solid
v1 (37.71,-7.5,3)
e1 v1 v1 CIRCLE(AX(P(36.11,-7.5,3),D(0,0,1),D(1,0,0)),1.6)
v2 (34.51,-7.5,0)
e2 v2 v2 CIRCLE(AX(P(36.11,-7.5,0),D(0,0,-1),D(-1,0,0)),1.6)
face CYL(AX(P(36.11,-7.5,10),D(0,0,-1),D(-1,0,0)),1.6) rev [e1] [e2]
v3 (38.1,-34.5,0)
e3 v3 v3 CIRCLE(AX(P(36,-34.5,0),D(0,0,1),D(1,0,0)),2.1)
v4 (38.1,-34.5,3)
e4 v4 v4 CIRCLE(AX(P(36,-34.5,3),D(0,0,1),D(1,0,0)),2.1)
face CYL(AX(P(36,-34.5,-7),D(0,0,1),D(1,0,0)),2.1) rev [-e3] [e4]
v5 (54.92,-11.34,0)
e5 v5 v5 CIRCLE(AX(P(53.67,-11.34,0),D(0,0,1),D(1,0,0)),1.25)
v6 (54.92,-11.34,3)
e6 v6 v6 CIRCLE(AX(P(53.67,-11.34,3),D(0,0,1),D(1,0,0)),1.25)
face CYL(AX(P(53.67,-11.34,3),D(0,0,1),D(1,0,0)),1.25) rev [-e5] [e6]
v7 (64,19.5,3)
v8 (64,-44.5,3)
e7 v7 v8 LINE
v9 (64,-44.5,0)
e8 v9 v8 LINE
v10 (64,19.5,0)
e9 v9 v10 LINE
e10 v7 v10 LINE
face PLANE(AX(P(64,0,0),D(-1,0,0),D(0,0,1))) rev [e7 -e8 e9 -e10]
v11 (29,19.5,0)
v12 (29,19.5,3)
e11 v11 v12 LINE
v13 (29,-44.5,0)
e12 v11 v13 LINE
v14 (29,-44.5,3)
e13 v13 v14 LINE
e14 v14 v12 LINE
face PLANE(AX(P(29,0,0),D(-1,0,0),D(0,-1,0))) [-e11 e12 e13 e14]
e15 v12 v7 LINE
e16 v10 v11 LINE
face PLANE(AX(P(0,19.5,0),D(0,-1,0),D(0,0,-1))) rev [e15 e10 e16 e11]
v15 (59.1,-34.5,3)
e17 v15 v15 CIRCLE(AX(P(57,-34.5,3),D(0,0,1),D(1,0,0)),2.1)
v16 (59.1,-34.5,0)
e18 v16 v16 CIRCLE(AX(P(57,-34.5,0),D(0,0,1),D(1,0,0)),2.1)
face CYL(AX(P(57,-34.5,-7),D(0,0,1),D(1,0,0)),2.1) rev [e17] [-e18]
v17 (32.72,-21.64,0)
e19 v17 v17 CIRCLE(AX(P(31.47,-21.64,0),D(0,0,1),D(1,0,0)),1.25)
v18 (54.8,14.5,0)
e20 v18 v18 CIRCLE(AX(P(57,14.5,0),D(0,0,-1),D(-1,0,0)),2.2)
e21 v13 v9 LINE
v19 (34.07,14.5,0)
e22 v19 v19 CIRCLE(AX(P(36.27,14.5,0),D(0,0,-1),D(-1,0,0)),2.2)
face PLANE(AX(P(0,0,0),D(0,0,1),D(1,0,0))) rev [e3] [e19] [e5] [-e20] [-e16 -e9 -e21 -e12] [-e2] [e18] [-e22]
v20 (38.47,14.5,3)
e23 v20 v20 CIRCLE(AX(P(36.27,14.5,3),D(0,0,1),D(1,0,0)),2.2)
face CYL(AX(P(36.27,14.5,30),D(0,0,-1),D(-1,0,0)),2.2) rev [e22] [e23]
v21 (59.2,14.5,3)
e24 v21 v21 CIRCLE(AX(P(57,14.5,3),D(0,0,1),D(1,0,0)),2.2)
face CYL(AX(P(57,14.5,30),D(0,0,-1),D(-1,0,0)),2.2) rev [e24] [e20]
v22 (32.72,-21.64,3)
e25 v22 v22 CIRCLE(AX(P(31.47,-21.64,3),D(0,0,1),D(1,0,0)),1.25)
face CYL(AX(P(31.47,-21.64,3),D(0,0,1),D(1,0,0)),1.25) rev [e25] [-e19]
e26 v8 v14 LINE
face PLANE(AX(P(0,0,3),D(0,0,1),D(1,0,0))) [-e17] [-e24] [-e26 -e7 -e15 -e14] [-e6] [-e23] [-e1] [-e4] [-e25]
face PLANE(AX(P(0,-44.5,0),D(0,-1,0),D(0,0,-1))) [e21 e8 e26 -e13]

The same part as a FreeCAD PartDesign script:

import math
import FreeCAD as App
import Part
import Sketcher


def add_polygon(sketch, points):
    """Adds a closed chain of lines whose ends are joined by coincident constraints."""
    first, n = sketch.GeometryCount, len(points)
    for a, b in zip(points, points[1:] + points[:1]):
        sketch.addGeometry(Part.LineSegment(App.Vector(*a, 0), App.Vector(*b, 0)), False)
    for i in range(n):
        sketch.addConstraint(Sketcher.Constraint("Coincident", first + i, 2, first + (i + 1) % n, 1))

doc = App.newDocument("Part")
params = doc.addObject("Spreadsheet::Sheet", "Params")
for row, (alias, value) in enumerate([
    ("sketch1_width", "40 mm"),
    ("sketch1_height", "29 mm"),
    ("pad1_length", "3 mm"),
    ("sketch2_radius", "2.1 mm"),
    ("pocket1_length", "3 mm"),
    ("sketch3_width", "40 mm"),
    ("sketch3_height", "3 mm"),
    ("pad2_length", "10 mm"),
    ("sketch4_width", "40 mm"),
    ("sketch4_height", "3 mm"),
    ("pad3_length", "10 mm"),
    ("sketch5_width", "49 mm"),
    ("sketch5_height", "3 mm"),
    ("pad4_length", "42 mm"),
    ("sketch6_width", "49 mm"),
    ("sketch6_height", "3 mm"),
    ("pad5_length", "2 mm"),
    ("sketch7_width", "49 mm"),
    ("sketch7_height", "3 mm"),
    ("pad6_length", "2 mm"),
    ("sketch8_width", "86 mm"),
    ("sketch8_height", "3 mm"),
    ("pad7_length", "10 mm"),
    ("sketch9_width", "86 mm"),
    ("sketch9_height", "3 mm"),
    ("pad8_length", "10 mm"),
    ("sketch10_width", "69 mm"),
    ("sketch10_height", "3 mm"),
    ("pocket2_length", "43 mm"),
    ("sketch11_width", "43 mm"),
    ("sketch11_height", "3 mm"),
    ("pad9_length", "20 mm"),
    ("sketch12_diameter", "4.2 mm"),
    ("pocket3_length", "10 mm"),
    ("sketch13_width", "43 mm"),
    ("sketch13_height", "3 mm"),
    ("pad10_length", "10 mm"),
    ("sketch14_width", "43 mm"),
    ("sketch14_height", "3 mm"),
    ("pocket4_length", "20 mm"),
    ("sketch15_diameter", "4.4 mm"),
    ("pocket5_length", "30 mm"),
    ("sketch16_diameter", "3.2 mm"),
    ("pocket6_length", "10 mm"),
    ("sketch17_width", "79 mm"),
    ("sketch17_height", "3 mm"),
    ("pocket7_length", "8 mm"),
    ("sketch18_width", "35 mm"),
    ("sketch18_height", "3 mm"),
    ("pocket8_length", "15 mm"),
    ("sketch19_diameter", "2.5 mm"),
    ("hole_diameter", "2.5 mm"),
    ("hole_depth", "8.5 mm"),
], start=1):
    params.set(f"A{row}", alias)
    params.set(f"B{row}", "=" + value)
    params.setAlias(f"B{row}", alias)

body = doc.addObject("PartDesign::Body", "Body")

# Sketch on XY plane
sketch1 = body.newObject("Sketcher::SketchObject", "Sketch")
sketch1.AttachmentSupport = (doc.getObject("XY_Plane"), [""])
sketch1.MapMode = "FlatFace"
add_polygon(sketch1, [(-20, 14), (-20, -14), (20, -14), (20, 14)])  # lines 0-3
sketch1.addConstraint([
    Sketcher.Constraint("Vertical", 0),
    Sketcher.Constraint("Horizontal", 1),
    Sketcher.Constraint("Vertical", 2),
    Sketcher.Constraint("Horizontal", 3),
    Sketcher.Constraint("Symmetric", 0, 2, 2, 2, -1, 1),
    Sketcher.Constraint("DistanceX", 1, 1, 1, 2, 40.0),
    Sketcher.Constraint("DistanceY", 0, 2, 0, 1, 29.0),
])
sketch1.setExpression("Constraints[9]", "Params.sketch1_width")
sketch1.setExpression("Constraints[10]", "Params.sketch1_height")
pad1 = body.newObject("PartDesign::Pad", "Pad")
pad1.Profile = sketch1
pad1.setExpression("Length", "Params.pad1_length")

# Sketch on XY plane
sketch2 = body.newObject("Sketcher::SketchObject", "Sketch001")
sketch2.AttachmentSupport = (doc.getObject("XY_Plane"), [""])
sketch2.MapMode = "FlatFace"
sketch2.AttachmentOffset = App.Placement(App.Vector(0, 0, 3), App.Rotation())
sketch2.addGeometry([
    Part.ArcOfCircle(Part.Circle(App.Vector(-16.5, 10.5, 0), App.Vector(0, 0, 1), 2.1), math.radians(0), math.radians(90)),  # 0
    Part.ArcOfCircle(Part.Circle(App.Vector(-16.5, 10.5, 0), App.Vector(0, 0, 1), 2.1), math.radians(90), math.radians(180)),  # 1
    Part.ArcOfCircle(Part.Circle(App.Vector(-16.5, 10.5, 0), App.Vector(0, 0, 1), 2.1), math.radians(180), math.radians(360)),  # 2
    Part.ArcOfCircle(Part.Circle(App.Vector(-16.5, -10.5, 0), App.Vector(0, 0, 1), 2.1), math.radians(-180), math.radians(-90)),  # 3
    Part.ArcOfCircle(Part.Circle(App.Vector(-16.5, -10.5, 0), App.Vector(0, 0, 1), 2.1), math.radians(-90), math.radians(0)),  # 4
    Part.ArcOfCircle(Part.Circle(App.Vector(-16.5, -10.5, 0), App.Vector(0, 0, 1), 2.1), math.radians(0), math.radians(180)),  # 5
    Part.ArcOfCircle(Part.Circle(App.Vector(16.5, -10.5, 0), App.Vector(0, 0, 1), 2.1), math.radians(0), math.radians(270)),  # 6
    Part.ArcOfCircle(Part.Circle(App.Vector(16.5, -10.5, 0), App.Vector(0, 0, 1), 2.1), math.radians(-90), math.radians(0)),  # 7
    Part.ArcOfCircle(Part.Circle(App.Vector(16.5, 10.5, 0), App.Vector(0, 0, 1), 2.1), math.radians(0), math.radians(90)),  # 8
    Part.ArcOfCircle(Part.Circle(App.Vector(16.5, 10.5, 0), App.Vector(0, 0, 1), 2.1), math.radians(90), math.radians(360)),  # 9
], False)
sketch2.addConstraint([
    Sketcher.Constraint("Tangent", 0, 2, 1, 1),
    Sketcher.Constraint("Tangent", 1, 2, 2, 1),
    Sketcher.Constraint("Tangent", 2, 2, 0, 1),
    Sketcher.Constraint("Tangent", 3, 2, 4, 1),
    Sketcher.Constraint("Tangent", 4, 2, 5, 1),
    Sketcher.Constraint("Tangent", 5, 2, 3, 1),
    Sketcher.Constraint("Tangent", 6, 1, 7, 2),
    Sketcher.Constraint("Coincident", 7, 1, 6, 2),
    Sketcher.Constraint("Tangent", 8, 1, 9, 2),
    Sketcher.Constraint("Coincident", 9, 1, 8, 2),
    Sketcher.Constraint("Equal", 2, 3),
    Sketcher.Constraint("Equal", 5, 6),
    Sketcher.Constraint("Equal", 7, 8),
    Sketcher.Constraint("Symmetric", 0, 3, 6, 3, -1, 1),
    Sketcher.Constraint("Symmetric", 3, 3, 8, 3, -1, 1),
    Sketcher.Constraint("Symmetric", 3, 3, 6, 3, -2),
    Sketcher.Constraint("Horizontal", 9, 3, 1, 2),
    Sketcher.Constraint("Horizontal", 1, 2, 2, 2),
    Sketcher.Constraint("Horizontal", 7, 3, 4, 2),
    Sketcher.Constraint("Horizontal", 4, 2, 5, 2),
    Sketcher.Constraint("Horizontal", 5, 2, 6, 1),
    Sketcher.Constraint("Horizontal", 2, 2, 8, 1),
    Sketcher.Constraint("Vertical", 5, 3, 0, 2),
    Sketcher.Constraint("Vertical", 0, 2, 3, 2),
    Sketcher.Constraint("Vertical", 9, 3, 7, 1),
    Sketcher.Constraint("Vertical", 7, 1, 9, 1),
    Sketcher.Constraint("Radius", 0, 2.1),
    Sketcher.Constraint("DistanceY", 3, 3, 0, 3, 21.0),
    Sketcher.Constraint("DistanceX", 3, 3, 6, 3, 33.0),
])
sketch2.setExpression("Constraints[26]", "Params.sketch2_radius")
pocket1 = body.newObject("PartDesign::Pocket", "Pocket")
pocket1.Profile = sketch2
pocket1.setExpression("Length", "Params.pocket1_length")

# Sketch on XZ plane
sketch3 = body.newObject("Sketcher::SketchObject", "Sketch002")
sketch3.AttachmentSupport = (doc.getObject("XZ_Plane"), [""])
sketch3.MapMode = "FlatFace"
sketch3.AttachmentOffset = App.Placement(App.Vector(0, 0, 14.5), App.Rotation())
add_polygon(sketch3, [(-20, 3), (-20, 0), (20, 0), (20, 3)])  # lines 0-3
sketch3.addConstraint([
    Sketcher.Constraint("Vertical", 0),
    Sketcher.Constraint("Horizontal", 1),
    Sketcher.Constraint("Vertical", 2),
    Sketcher.Constraint("Horizontal", 3),
    Sketcher.Constraint("Symmetric", 0, 2, 1, 2, -1, 1),
    Sketcher.Constraint("DistanceX", 1, 1, 1, 2, 40.0),
    Sketcher.Constraint("DistanceY", 0, 2, 0, 1, 3.0),
])
sketch3.setExpression("Constraints[9]", "Params.sketch3_width")
sketch3.setExpression("Constraints[10]", "Params.sketch3_height")
pad2 = body.newObject("PartDesign::Pad", "Pad001")
pad2.Profile = sketch3
pad2.setExpression("Length", "Params.pad2_length")

# Sketch on XZ plane
sketch4 = body.newObject("Sketcher::SketchObject", "Sketch003")
sketch4.AttachmentSupport = (doc.getObject("XZ_Plane"), [""])
sketch4.MapMode = "FlatFace"
sketch4.AttachmentOffset = App.Placement(App.Vector(0, 0, -14.5), App.Rotation())
add_polygon(sketch4, [(-20, 0), (-20, 3), (20, 3), (20, 0)])  # lines 0-3
sketch4.addConstraint([
    Sketcher.Constraint("Vertical", 0),
    Sketcher.Constraint("Horizontal", 1),
    Sketcher.Constraint("Vertical", 2),
    Sketcher.Constraint("Horizontal", 3),
    Sketcher.Constraint("Symmetric", 2, 2, 3, 2, -1, 1),
    Sketcher.Constraint("DistanceX", 1, 1, 1, 2, 40.0),
    Sketcher.Constraint("DistanceY", 0, 1, 0, 2, 3.0),
])
sketch4.setExpression("Constraints[9]", "Params.sketch4_width")
sketch4.setExpression("Constraints[10]", "Params.sketch4_height")
pad3 = body.newObject("PartDesign::Pad", "Pad002")
pad3.Profile = sketch4
pad3.setExpression("Length", "Params.pad3_length")
pad3.Reversed = True

# Sketch on YZ plane
sketch5 = body.newObject("Sketcher::SketchObject", "Sketch004")
sketch5.AttachmentSupport = (doc.getObject("YZ_Plane"), [""])
sketch5.MapMode = "FlatFace"
sketch5.AttachmentOffset = App.Placement(App.Vector(0, 0, 20), App.Rotation())
add_polygon(sketch5, [(24.5, 3), (-24.5, 3), (-24.5, 0), (24.5, 0)])  # lines 0-3
sketch5.addConstraint([
    Sketcher.Constraint("Horizontal", 0),
    Sketcher.Constraint("Vertical", 1),
    Sketcher.Constraint("Horizontal", 2),
    Sketcher.Constraint("Vertical", 3),
    Sketcher.Constraint("Symmetric", 1, 2, 2, 2, -1, 1),
    Sketcher.Constraint("DistanceX", 0, 2, 0, 1, 49.0),
    Sketcher.Constraint("DistanceY", 1, 2, 1, 1, 3.0),
])
sketch5.setExpression("Constraints[9]", "Params.sketch5_width")
sketch5.setExpression("Constraints[10]", "Params.sketch5_height")
pad4 = body.newObject("PartDesign::Pad", "Pad003")
pad4.Profile = sketch5
pad4.setExpression("Length", "Params.pad4_length")

# Sketch on YZ plane
sketch6 = body.newObject("Sketcher::SketchObject", "Sketch005")
sketch6.AttachmentSupport = (doc.getObject("YZ_Plane"), [""])
sketch6.MapMode = "FlatFace"
sketch6.AttachmentOffset = App.Placement(App.Vector(0, 0, -20), App.Rotation())
add_polygon(sketch6, [(24.5, 0), (-24.5, 0), (-24.5, 3), (24.5, 3)])  # lines 0-3
sketch6.addConstraint([
    Sketcher.Constraint("Horizontal", 0),
    Sketcher.Constraint("Vertical", 1),
    Sketcher.Constraint("Horizontal", 2),
    Sketcher.Constraint("Vertical", 3),
    Sketcher.Constraint("Symmetric", 0, 2, 3, 2, -1, 1),
    Sketcher.Constraint("DistanceX", 0, 2, 0, 1, 49.0),
    Sketcher.Constraint("DistanceY", 1, 1, 1, 2, 3.0),
])
sketch6.setExpression("Constraints[9]", "Params.sketch6_width")
sketch6.setExpression("Constraints[10]", "Params.sketch6_height")
pad5 = body.newObject("PartDesign::Pad", "Pad004")
pad5.Profile = sketch6
pad5.setExpression("Length", "Params.pad5_length")
pad5.Reversed = True

# Sketch on YZ plane
sketch7 = body.newObject("Sketcher::SketchObject", "Sketch006")
sketch7.AttachmentSupport = (doc.getObject("YZ_Plane"), [""])
sketch7.MapMode = "FlatFace"
sketch7.AttachmentOffset = App.Placement(App.Vector(0, 0, 62), App.Rotation())
add_polygon(sketch7, [(24.5, 3), (-24.5, 3), (-24.5, 0), (24.5, 0)])  # lines 0-3
sketch7.addConstraint([
    Sketcher.Constraint("Horizontal", 0),
    Sketcher.Constraint("Vertical", 1),
    Sketcher.Constraint("Horizontal", 2),
    Sketcher.Constraint("Vertical", 3),
    Sketcher.Constraint("Symmetric", 1, 2, 2, 2, -1, 1),
    Sketcher.Constraint("DistanceX", 0, 2, 0, 1, 49.0),
    Sketcher.Constraint("DistanceY", 1, 2, 1, 1, 3.0),
])
sketch7.setExpression("Constraints[9]", "Params.sketch7_width")
sketch7.setExpression("Constraints[10]", "Params.sketch7_height")
pad6 = body.newObject("PartDesign::Pad", "Pad005")
pad6.Profile = sketch7
pad6.setExpression("Length", "Params.pad6_length")

# Sketch on XZ plane
sketch8 = body.newObject("Sketcher::SketchObject", "Sketch007")
sketch8.AttachmentSupport = (doc.getObject("XZ_Plane"), [""])
sketch8.MapMode = "FlatFace"
sketch8.AttachmentOffset = App.Placement(App.Vector(0, 0, 24.5), App.Rotation())
add_polygon(sketch8, [(-22, 3), (-22, 0), (64, 0), (64, 3)])  # lines 0-3
sketch8.addConstraint([
    Sketcher.Constraint("Vertical", 0),
    Sketcher.Constraint("Horizontal", 1),
    Sketcher.Constraint("Vertical", 2),
    Sketcher.Constraint("Horizontal", 3),
    Sketcher.Constraint("PointOnObject", 0, 2, -1),
    Sketcher.Constraint("DistanceX", 1, 1, 1, 2, 86.0),
    Sketcher.Constraint("DistanceY", 0, 2, 0, 1, 3.0),
    Sketcher.Constraint("DistanceX", 0, 2, -1, 1, 22.0),
])
sketch8.setExpression("Constraints[9]", "Params.sketch8_width")
sketch8.setExpression("Constraints[10]", "Params.sketch8_height")
pad7 = body.newObject("PartDesign::Pad", "Pad006")
pad7.Profile = sketch8
pad7.setExpression("Length", "Params.pad7_length")

# Sketch on XZ plane
sketch9 = body.newObject("Sketcher::SketchObject", "Sketch008")
sketch9.AttachmentSupport = (doc.getObject("XZ_Plane"), [""])
sketch9.MapMode = "FlatFace"
sketch9.AttachmentOffset = App.Placement(App.Vector(0, 0, -24.5), App.Rotation())
add_polygon(sketch9, [(-22, 0), (-22, 3), (64, 3), (64, 0)])  # lines 0-3
sketch9.addConstraint([
    Sketcher.Constraint("Vertical", 0),
    Sketcher.Constraint("Horizontal", 1),
    Sketcher.Constraint("Vertical", 2),
    Sketcher.Constraint("Horizontal", 3),
    Sketcher.Constraint("PointOnObject", 2, 2, -1),
    Sketcher.Constraint("DistanceX", 1, 1, 1, 2, 86.0),
    Sketcher.Constraint("DistanceY", 0, 1, 0, 2, 3.0),
    Sketcher.Constraint("DistanceX", 0, 2, -1, 1, 22.0),
])
sketch9.setExpression("Constraints[9]", "Params.sketch9_width")
sketch9.setExpression("Constraints[10]", "Params.sketch9_height")
pad8 = body.newObject("PartDesign::Pad", "Pad007")
pad8.Profile = sketch9
pad8.setExpression("Length", "Params.pad8_length")
pad8.Reversed = True

# Sketch on YZ plane
sketch10 = body.newObject("Sketcher::SketchObject", "Sketch009")
sketch10.AttachmentSupport = (doc.getObject("YZ_Plane"), [""])
sketch10.MapMode = "FlatFace"
sketch10.AttachmentOffset = App.Placement(App.Vector(0, 0, -22), App.Rotation())
add_polygon(sketch10, [(34.5, 0), (-34.5, 0), (-34.5, 3), (34.5, 3)])  # lines 0-3
sketch10.addConstraint([
    Sketcher.Constraint("Horizontal", 0),
    Sketcher.Constraint("Vertical", 1),
    Sketcher.Constraint("Horizontal", 2),
    Sketcher.Constraint("Vertical", 3),
    Sketcher.Constraint("Symmetric", 0, 2, 3, 2, -1, 1),
    Sketcher.Constraint("DistanceX", 0, 2, 0, 1, 69.0),
    Sketcher.Constraint("DistanceY", 1, 1, 1, 2, 3.0),
])
sketch10.setExpression("Constraints[9]", "Params.sketch10_width")
sketch10.setExpression("Constraints[10]", "Params.sketch10_height")
pocket2 = body.newObject("PartDesign::Pocket", "Pocket001")
pocket2.Profile = sketch10
pocket2.setExpression("Length", "Params.pocket2_length")
pocket2.Reversed = True

# Sketch on XZ plane
sketch11 = body.newObject("Sketcher::SketchObject", "Sketch010")
sketch11.AttachmentSupport = (doc.getObject("XZ_Plane"), [""])
sketch11.MapMode = "FlatFace"
sketch11.AttachmentOffset = App.Placement(App.Vector(0, 0, 34.5), App.Rotation())
add_polygon(sketch11, [(21, 3), (21, 0), (64, 0), (64, 3)])  # lines 0-3
sketch11.addConstraint([
    Sketcher.Constraint("Vertical", 0),
    Sketcher.Constraint("Horizontal", 1),
    Sketcher.Constraint("Vertical", 2),
    Sketcher.Constraint("Horizontal", 3),
    Sketcher.Constraint("PointOnObject", 0, 2, -1),
    Sketcher.Constraint("DistanceX", 1, 1, 1, 2, 43.0),
    Sketcher.Constraint("DistanceY", 0, 2, 0, 1, 3.0),
    Sketcher.Constraint("DistanceX", -1, 1, 0, 2, 21.0),
])
sketch11.setExpression("Constraints[9]", "Params.sketch11_width")
sketch11.setExpression("Constraints[10]", "Params.sketch11_height")
pad9 = body.newObject("PartDesign::Pad", "Pad008")
pad9.Profile = sketch11
pad9.setExpression("Length", "Params.pad9_length")

# Sketch on XY plane
sketch12 = body.newObject("Sketcher::SketchObject", "Sketch011")
sketch12.AttachmentSupport = (doc.getObject("XY_Plane"), [""])
sketch12.MapMode = "FlatFace"
sketch12.AttachmentOffset = App.Placement(App.Vector(0, 0, 3), App.Rotation())
sketch12.addGeometry([
    Part.Circle(App.Vector(36, -34.5, 0), App.Vector(0, 0, 1), 2.1),
    Part.Circle(App.Vector(57, -34.5, 0), App.Vector(0, 0, 1), 2.1),
], False)
sketch12.addConstraint([
    Sketcher.Constraint("Equal", 0, 1),
    Sketcher.Constraint("Horizontal", 0, 3, 1, 3),
    Sketcher.Constraint("Diameter", 0, 4.2),
    Sketcher.Constraint("DistanceX", -1, 1, 0, 3, 36.0),
    Sketcher.Constraint("DistanceX", -1, 1, 1, 3, 57.0),
    Sketcher.Constraint("DistanceY", 0, 3, -1, 1, 34.5),
])
sketch12.setExpression("Constraints[2]", "Params.sketch12_diameter")
pocket3 = body.newObject("PartDesign::Pocket", "Pocket002")
pocket3.Profile = sketch12
pocket3.setExpression("Length", "Params.pocket3_length")

# Sketch on XZ plane
sketch13 = body.newObject("Sketcher::SketchObject", "Sketch012")
sketch13.AttachmentSupport = (doc.getObject("XZ_Plane"), [""])
sketch13.MapMode = "FlatFace"
sketch13.AttachmentOffset = App.Placement(App.Vector(0, 0, 54.5), App.Rotation())
add_polygon(sketch13, [(21, 3), (21, 0), (64, 0), (64, 3)])  # lines 0-3
sketch13.addConstraint([
    Sketcher.Constraint("Vertical", 0),
    Sketcher.Constraint("Horizontal", 1),
    Sketcher.Constraint("Vertical", 2),
    Sketcher.Constraint("Horizontal", 3),
    Sketcher.Constraint("PointOnObject", 0, 2, -1),
    Sketcher.Constraint("DistanceX", 1, 1, 1, 2, 43.0),
    Sketcher.Constraint("DistanceY", 0, 2, 0, 1, 3.0),
    Sketcher.Constraint("DistanceX", -1, 1, 0, 2, 21.0),
])
sketch13.setExpression("Constraints[9]", "Params.sketch13_width")
sketch13.setExpression("Constraints[10]", "Params.sketch13_height")
pad10 = body.newObject("PartDesign::Pad", "Pad009")
pad10.Profile = sketch13
pad10.setExpression("Length", "Params.pad10_length")

# Sketch on XZ plane
sketch14 = body.newObject("Sketcher::SketchObject", "Sketch013")
sketch14.AttachmentSupport = (doc.getObject("XZ_Plane"), [""])
sketch14.MapMode = "FlatFace"
sketch14.AttachmentOffset = App.Placement(App.Vector(0, 0, 64.5), App.Rotation())
add_polygon(sketch14, [(21, 3), (21, 0), (64, 0), (64, 3)])  # lines 0-3
sketch14.addConstraint([
    Sketcher.Constraint("Vertical", 0),
    Sketcher.Constraint("Horizontal", 1),
    Sketcher.Constraint("Vertical", 2),
    Sketcher.Constraint("Horizontal", 3),
    Sketcher.Constraint("PointOnObject", 0, 2, -1),
    Sketcher.Constraint("DistanceX", 1, 1, 1, 2, 43.0),
    Sketcher.Constraint("DistanceY", 0, 2, 0, 1, 3.0),
    Sketcher.Constraint("DistanceX", -1, 1, 0, 2, 21.0),
])
sketch14.setExpression("Constraints[9]", "Params.sketch14_width")
sketch14.setExpression("Constraints[10]", "Params.sketch14_height")
pocket4 = body.newObject("PartDesign::Pocket", "Pocket003")
pocket4.Profile = sketch14
pocket4.setExpression("Length", "Params.pocket4_length")

# Sketch on XY plane
sketch15 = body.newObject("Sketcher::SketchObject", "Sketch014")
sketch15.AttachmentSupport = (doc.getObject("XY_Plane"), [""])
sketch15.MapMode = "FlatFace"
sketch15.addGeometry([
    Part.Circle(App.Vector(36.3, 14.5, 0), App.Vector(0, 0, 1), 2.2),
    Part.Circle(App.Vector(57, 14.5, 0), App.Vector(0, 0, 1), 2.2),
], False)
sketch15.addConstraint([
    Sketcher.Constraint("Equal", 0, 1),
    Sketcher.Constraint("Horizontal", 0, 3, 1, 3),
    Sketcher.Constraint("Diameter", 0, 4.4),
    Sketcher.Constraint("DistanceX", -1, 1, 1, 3, 57.0),
    Sketcher.Constraint("DistanceY", -1, 1, 0, 3, 14.5),
    Sketcher.Constraint("DistanceX", -1, 1, 0, 3, 36.27),
])
sketch15.setExpression("Constraints[2]", "Params.sketch15_diameter")
pocket5 = body.newObject("PartDesign::Pocket", "Pocket004")
pocket5.Profile = sketch15
pocket5.setExpression("Length", "Params.pocket5_length")
pocket5.Reversed = True

# Sketch on XY plane
sketch16 = body.newObject("Sketcher::SketchObject", "Sketch015")
sketch16.AttachmentSupport = (doc.getObject("XY_Plane"), [""])
sketch16.MapMode = "FlatFace"
sketch16.addGeometry(Part.Circle(App.Vector(36.1, -7.5, 0), App.Vector(0, 0, 1), 1.6), False)
sketch16.addConstraint([
    Sketcher.Constraint("Diameter", 0, 3.2),
    Sketcher.Constraint("DistanceY", 0, 3, -1, 1, 7.5),
    Sketcher.Constraint("DistanceX", -1, 1, 0, 3, 36.11),
])
sketch16.setExpression("Constraints[0]", "Params.sketch16_diameter")
pocket6 = body.newObject("PartDesign::Pocket", "Pocket005")
pocket6.Profile = sketch16
pocket6.setExpression("Length", "Params.pocket6_length")
pocket6.Reversed = True

# Sketch on YZ plane
sketch17 = body.newObject("Sketcher::SketchObject", "Sketch016")
sketch17.AttachmentSupport = (doc.getObject("YZ_Plane"), [""])
sketch17.MapMode = "FlatFace"
sketch17.AttachmentOffset = App.Placement(App.Vector(0, 0, 21), App.Rotation())
add_polygon(sketch17, [(34.5, 0), (-44.5, 0), (-44.5, 3), (34.5, 3)])  # lines 0-3
sketch17.addConstraint([
    Sketcher.Constraint("Horizontal", 0),
    Sketcher.Constraint("Vertical", 1),
    Sketcher.Constraint("Horizontal", 2),
    Sketcher.Constraint("Vertical", 3),
    Sketcher.Constraint("PointOnObject", 0, 2, -1),
    Sketcher.Constraint("DistanceX", 0, 2, 0, 1, 79.0),
    Sketcher.Constraint("DistanceY", 1, 1, 1, 2, 3.0),
    Sketcher.Constraint("DistanceX", 0, 2, -1, 1, 44.5),
])
sketch17.setExpression("Constraints[9]", "Params.sketch17_width")
sketch17.setExpression("Constraints[10]", "Params.sketch17_height")
pocket7 = body.newObject("PartDesign::Pocket", "Pocket006")
pocket7.Profile = sketch17
pocket7.setExpression("Length", "Params.pocket7_length")
pocket7.Reversed = True

# Sketch on XZ plane
sketch18 = body.newObject("Sketcher::SketchObject", "Sketch017")
sketch18.AttachmentSupport = (doc.getObject("XZ_Plane"), [""])
sketch18.MapMode = "FlatFace"
sketch18.AttachmentOffset = App.Placement(App.Vector(0, 0, -34.5), App.Rotation())
add_polygon(sketch18, [(29, 0), (29, 3), (64, 3), (64, 0)])  # lines 0-3
sketch18.addConstraint([
    Sketcher.Constraint("Vertical", 0),
    Sketcher.Constraint("Horizontal", 1),
    Sketcher.Constraint("Vertical", 2),
    Sketcher.Constraint("Horizontal", 3),
    Sketcher.Constraint("PointOnObject", 2, 2, -1),
    Sketcher.Constraint("DistanceX", 1, 1, 1, 2, 35.0),
    Sketcher.Constraint("DistanceY", 0, 1, 0, 2, 3.0),
    Sketcher.Constraint("DistanceX", -1, 1, 0, 2, 29.0),
])
sketch18.setExpression("Constraints[9]", "Params.sketch18_width")
sketch18.setExpression("Constraints[10]", "Params.sketch18_height")
pocket8 = body.newObject("PartDesign::Pocket", "Pocket007")
pocket8.Profile = sketch18
pocket8.setExpression("Length", "Params.pocket8_length")
pocket8.Reversed = True

# Sketch on XY plane
sketch19 = body.newObject("Sketcher::SketchObject", "Sketch018")
sketch19.AttachmentSupport = (doc.getObject("XY_Plane"), [""])
sketch19.MapMode = "FlatFace"
sketch19.AttachmentOffset = App.Placement(App.Vector(0, 0, 3), App.Rotation())
sketch19.addGeometry([
    Part.Circle(App.Vector(31.5, -21.6, 0), App.Vector(0, 0, 1), 1.2),
    Part.Circle(App.Vector(53.7, -11.3, 0), App.Vector(0, 0, 1), 1.2),
], False)
sketch19.addConstraint([
    Sketcher.Constraint("Equal", 0, 1),
    Sketcher.Constraint("Diameter", 0, 2.5),
    Sketcher.Constraint("DistanceX", 0, 3, 1, 3, 22.2),
    Sketcher.Constraint("DistanceY", 0, 3, 1, 3, 10.3),
    Sketcher.Constraint("DistanceX", -1, 1, 0, 3, 31.47),
    Sketcher.Constraint("DistanceY", 0, 3, -1, 1, 21.64),
])
sketch19.setExpression("Constraints[1]", "Params.sketch19_diameter")
doc.recompute()
hole = body.newObject("PartDesign::Hole", "Hole")
hole.Profile = sketch19
hole.ThreadType = "None"
hole.setExpression("Diameter", "Params.hole_diameter")
hole.DepthType = "Dimension"
hole.setExpression("Depth", "Params.hole_depth")
hole.DrillPoint = "Angled"
hole.DrillPointAngle = 118

doc.recompute()
